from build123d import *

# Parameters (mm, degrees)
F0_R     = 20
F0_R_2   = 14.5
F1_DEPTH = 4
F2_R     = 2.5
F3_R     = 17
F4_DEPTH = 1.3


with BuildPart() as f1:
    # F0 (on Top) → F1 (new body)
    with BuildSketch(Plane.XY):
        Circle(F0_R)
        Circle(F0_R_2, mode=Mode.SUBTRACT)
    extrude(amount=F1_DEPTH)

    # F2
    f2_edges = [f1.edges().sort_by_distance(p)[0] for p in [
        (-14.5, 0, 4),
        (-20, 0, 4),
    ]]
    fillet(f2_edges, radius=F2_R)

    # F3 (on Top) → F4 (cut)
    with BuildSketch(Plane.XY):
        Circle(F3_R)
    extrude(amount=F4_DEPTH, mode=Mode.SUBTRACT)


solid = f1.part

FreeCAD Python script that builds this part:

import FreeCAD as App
import Part
import Sketcher


def edges_at(feature, points):
    """Names of the edges that pass closest to the given points."""
    edges = feature.Shape.Edges
    near = lambda p: min(range(len(edges)), key=lambda i: edges[i].distToShape(Part.Vertex(*p))[0])
    return sorted({f"Edge{near(p) + 1}" for p in points})

doc = App.newDocument("Part")
params = doc.addObject("Spreadsheet::Sheet", "Params")
for row, (alias, value) in enumerate([
    ("sketch1_diameter", "40 mm"),
    ("sketch1_diameter2", "29 mm"),
    ("pad1_length", "4 mm"),
    ("fillet_radius", "2.5 mm"),
    ("sketch2_diameter", "34 mm"),
    ("pocket1_length", "1.3 mm"),
], start=1):
    params.set(f"A{row}", alias)
    params.set(f"B{row}", "=" + value)
    params.setAlias(f"B{row}", alias)

body = doc.addObject("PartDesign::Body", "Body")

# Sketch on XY plane
sketch1 = body.newObject("Sketcher::SketchObject", "Sketch")
sketch1.AttachmentSupport = (doc.getObject("XY_Plane"), [""])
sketch1.MapMode = "FlatFace"
sketch1.addGeometry([
    Part.Circle(App.Vector(0, 0, 0), App.Vector(0, 0, 1), 20),
    Part.Circle(App.Vector(0, 0, 0), App.Vector(0, 0, 1), 14),
], False)
sketch1.addConstraint([
    Sketcher.Constraint("Coincident", 0, 3, -1, 1),
    Sketcher.Constraint("Coincident", 1, 3, -1, 1),
    Sketcher.Constraint("Diameter", 0, 40.0),
    Sketcher.Constraint("Diameter", 1, 29.0),
])
sketch1.setExpression("Constraints[2]", "Params.sketch1_diameter")
sketch1.setExpression("Constraints[3]", "Params.sketch1_diameter2")
pad1 = body.newObject("PartDesign::Pad", "Pad")
pad1.Profile = sketch1
pad1.setExpression("Length", "Params.pad1_length")
doc.recompute()

fillet = body.newObject("PartDesign::Fillet", "Fillet")
fillet.Base = (pad1, edges_at(pad1, [(-14.5, 0, 4), (-20, 0, 4)]))
fillet.setExpression("Radius", "Params.fillet_radius")

# Sketch on XY plane
sketch2 = body.newObject("Sketcher::SketchObject", "Sketch001")
sketch2.AttachmentSupport = (doc.getObject("XY_Plane"), [""])
sketch2.MapMode = "FlatFace"
sketch2.addGeometry(Part.Circle(App.Vector(0, 0, 0), App.Vector(0, 0, 1), 17), False)
sketch2.addConstraint([
    Sketcher.Constraint("Coincident", 0, 3, -1, 1),
    Sketcher.Constraint("Diameter", 0, 34.0),
])
sketch2.setExpression("Constraints[1]", "Params.sketch2_diameter")
pocket1 = body.newObject("PartDesign::Pocket", "Pocket")
pocket1.Profile = sketch2
pocket1.setExpression("Length", "Params.pocket1_length")
pocket1.Reversed = True

doc.recompute()
